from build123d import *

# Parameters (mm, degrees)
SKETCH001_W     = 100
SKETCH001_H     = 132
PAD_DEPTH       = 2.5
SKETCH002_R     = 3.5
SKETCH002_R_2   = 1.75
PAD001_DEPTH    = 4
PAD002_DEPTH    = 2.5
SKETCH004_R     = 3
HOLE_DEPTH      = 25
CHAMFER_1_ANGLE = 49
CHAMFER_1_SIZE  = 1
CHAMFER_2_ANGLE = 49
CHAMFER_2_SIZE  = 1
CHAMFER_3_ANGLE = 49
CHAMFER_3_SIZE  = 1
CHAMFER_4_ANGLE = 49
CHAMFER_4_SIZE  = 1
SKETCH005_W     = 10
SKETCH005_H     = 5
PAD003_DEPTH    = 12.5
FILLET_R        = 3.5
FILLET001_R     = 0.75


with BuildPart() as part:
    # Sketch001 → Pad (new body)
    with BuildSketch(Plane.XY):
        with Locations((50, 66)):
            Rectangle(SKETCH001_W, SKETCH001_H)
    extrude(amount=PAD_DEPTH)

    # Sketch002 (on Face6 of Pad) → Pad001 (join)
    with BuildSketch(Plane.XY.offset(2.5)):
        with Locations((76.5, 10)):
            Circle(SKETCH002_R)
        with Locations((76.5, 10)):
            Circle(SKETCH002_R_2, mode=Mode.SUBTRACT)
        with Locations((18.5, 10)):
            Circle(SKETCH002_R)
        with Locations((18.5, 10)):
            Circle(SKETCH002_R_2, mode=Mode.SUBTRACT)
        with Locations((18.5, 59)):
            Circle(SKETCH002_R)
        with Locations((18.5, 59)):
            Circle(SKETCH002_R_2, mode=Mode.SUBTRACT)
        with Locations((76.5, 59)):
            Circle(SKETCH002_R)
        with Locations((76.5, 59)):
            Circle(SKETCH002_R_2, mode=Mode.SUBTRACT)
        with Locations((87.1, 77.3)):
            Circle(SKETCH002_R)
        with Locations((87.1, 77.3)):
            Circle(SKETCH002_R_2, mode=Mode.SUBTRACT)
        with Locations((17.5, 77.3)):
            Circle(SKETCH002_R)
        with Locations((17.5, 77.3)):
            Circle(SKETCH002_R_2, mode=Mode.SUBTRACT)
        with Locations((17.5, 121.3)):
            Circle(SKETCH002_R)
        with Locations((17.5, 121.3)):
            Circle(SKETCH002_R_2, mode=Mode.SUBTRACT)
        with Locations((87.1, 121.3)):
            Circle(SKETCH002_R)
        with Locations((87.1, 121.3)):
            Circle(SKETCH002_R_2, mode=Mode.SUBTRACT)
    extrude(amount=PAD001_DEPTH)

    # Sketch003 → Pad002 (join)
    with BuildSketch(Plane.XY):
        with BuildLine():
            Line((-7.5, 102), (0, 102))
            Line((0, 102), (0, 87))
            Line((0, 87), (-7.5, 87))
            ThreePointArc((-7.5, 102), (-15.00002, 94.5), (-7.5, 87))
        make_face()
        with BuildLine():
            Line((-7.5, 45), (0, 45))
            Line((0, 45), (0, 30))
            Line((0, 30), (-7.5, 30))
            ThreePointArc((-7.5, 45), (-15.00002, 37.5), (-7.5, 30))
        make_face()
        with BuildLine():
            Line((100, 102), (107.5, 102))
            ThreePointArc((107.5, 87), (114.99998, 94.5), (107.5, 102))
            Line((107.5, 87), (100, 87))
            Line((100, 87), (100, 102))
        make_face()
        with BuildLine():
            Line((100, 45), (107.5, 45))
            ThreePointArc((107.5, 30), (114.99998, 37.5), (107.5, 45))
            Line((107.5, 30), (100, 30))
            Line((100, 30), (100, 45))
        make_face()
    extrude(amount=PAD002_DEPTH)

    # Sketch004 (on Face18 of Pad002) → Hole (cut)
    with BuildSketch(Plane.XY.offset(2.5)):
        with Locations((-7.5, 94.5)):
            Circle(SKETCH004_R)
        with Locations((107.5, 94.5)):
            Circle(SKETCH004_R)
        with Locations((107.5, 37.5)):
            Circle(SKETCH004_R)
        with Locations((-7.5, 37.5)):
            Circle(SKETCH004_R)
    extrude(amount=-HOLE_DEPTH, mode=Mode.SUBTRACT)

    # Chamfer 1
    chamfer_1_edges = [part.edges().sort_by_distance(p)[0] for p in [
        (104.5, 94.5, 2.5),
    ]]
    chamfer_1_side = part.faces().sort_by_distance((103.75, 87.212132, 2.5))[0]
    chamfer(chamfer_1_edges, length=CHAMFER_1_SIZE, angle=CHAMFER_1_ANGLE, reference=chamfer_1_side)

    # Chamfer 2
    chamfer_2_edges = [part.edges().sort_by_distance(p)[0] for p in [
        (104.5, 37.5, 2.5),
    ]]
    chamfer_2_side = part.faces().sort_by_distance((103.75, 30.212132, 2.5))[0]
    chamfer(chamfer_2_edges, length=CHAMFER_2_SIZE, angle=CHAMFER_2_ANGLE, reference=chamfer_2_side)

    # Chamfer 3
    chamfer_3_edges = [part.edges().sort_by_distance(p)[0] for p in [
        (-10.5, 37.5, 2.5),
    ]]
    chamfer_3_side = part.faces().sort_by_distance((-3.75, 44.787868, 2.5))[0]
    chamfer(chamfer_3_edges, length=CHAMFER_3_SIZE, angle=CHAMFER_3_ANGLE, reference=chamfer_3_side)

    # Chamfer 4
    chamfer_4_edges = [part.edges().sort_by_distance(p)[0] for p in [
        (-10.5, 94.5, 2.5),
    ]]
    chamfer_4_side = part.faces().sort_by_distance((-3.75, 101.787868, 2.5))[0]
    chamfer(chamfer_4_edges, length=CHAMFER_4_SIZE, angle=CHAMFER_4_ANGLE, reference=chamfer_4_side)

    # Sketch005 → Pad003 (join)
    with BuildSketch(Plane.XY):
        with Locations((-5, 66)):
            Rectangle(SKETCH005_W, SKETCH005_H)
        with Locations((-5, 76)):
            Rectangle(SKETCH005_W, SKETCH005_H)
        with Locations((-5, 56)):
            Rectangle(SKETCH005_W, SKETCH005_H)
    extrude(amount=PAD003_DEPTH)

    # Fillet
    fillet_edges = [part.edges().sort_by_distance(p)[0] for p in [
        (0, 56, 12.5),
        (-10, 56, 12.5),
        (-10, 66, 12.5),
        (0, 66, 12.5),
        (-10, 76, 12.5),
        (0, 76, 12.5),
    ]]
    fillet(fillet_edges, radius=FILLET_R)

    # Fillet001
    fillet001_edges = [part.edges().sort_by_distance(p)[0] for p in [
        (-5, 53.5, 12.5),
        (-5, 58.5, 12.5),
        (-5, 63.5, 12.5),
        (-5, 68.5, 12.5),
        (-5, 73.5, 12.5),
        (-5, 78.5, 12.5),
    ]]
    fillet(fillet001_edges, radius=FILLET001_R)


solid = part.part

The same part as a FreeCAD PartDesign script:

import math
import FreeCAD as App
import Part
import Sketcher
from FreeCAD import Vector
Q = App.Units.Quantity


def edges_at(feature, points):
    """Names of the edges that pass closest to the given points."""
    edges = feature.Shape.Edges
    near = lambda p: min(range(len(edges)), key=lambda i: edges[i].distToShape(Part.Vertex(*p))[0])
    return sorted({f"Edge{near(p) + 1}" for p in points})


def add_polygon(sketch, points):
    """Adds a closed chain of lines whose ends are joined by coincident constraints."""
    first, n = sketch.GeometryCount, len(points)
    for a, b in zip(points, points[1:] + points[:1]):
        sketch.addGeometry(Part.LineSegment(App.Vector(*a, 0), App.Vector(*b, 0)), False)
    for i in range(n):
        sketch.addConstraint(Sketcher.Constraint("Coincident", first + i, 2, first + (i + 1) % n, 1))

doc = App.newDocument("Part")
body = doc.addObject("PartDesign::Body", "Body")

# Sketch on XY plane
sketch1 = doc.addObject("Sketcher::SketchObject", "Sketch")
body.addObject(sketch1)
sketch1.AttachmentSupport = (doc.XY_Plane, [""])
sketch1.MapMode = "FlatFace"
add_polygon(sketch1, [(0, 132), (0, 0), (100, 0), (100, 132)])  # lines 0-3
sketch1.addConstraint([
    Sketcher.Constraint("Vertical", 0),
    Sketcher.Constraint("Horizontal", 1),
    Sketcher.Constraint("Vertical", 2),
    Sketcher.Constraint("Horizontal", 3),
    Sketcher.Constraint("Coincident", 0, 2, -1, 1),
    Sketcher.Constraint("DistanceX", 1, 1, 1, 2, Q("100 mm")),
    Sketcher.Constraint("DistanceY", 0, 2, 0, 1, Q("132 mm")),
])
pad1 = doc.addObject("PartDesign::Pad", "Pad")
body.addObject(pad1)
pad1.Profile = sketch1
pad1.Length = 2.5

# Sketch on XY plane
sketch2 = doc.addObject("Sketcher::SketchObject", "Sketch001")
body.addObject(sketch2)
sketch2.AttachmentSupport = (doc.XY_Plane, [""])
sketch2.MapMode = "FlatFace"
sketch2.AttachmentOffset = App.Placement(Vector(0, 0, 2.5), App.Rotation())
sketch2.addGeometry([
    Part.Circle(Vector(76.5, 10, 0), Vector(0, 0, 1), 3.5),  # 0
    Part.Circle(Vector(76.5, 10, 0), Vector(0, 0, 1), 1.8),  # 1
    Part.Circle(Vector(18.5, 10, 0), Vector(0, 0, 1), 3.5),  # 2
    Part.Circle(Vector(18.5, 10, 0), Vector(0, 0, 1), 1.8),  # 3
    Part.Circle(Vector(18.5, 59, 0), Vector(0, 0, 1), 3.5),  # 4
    Part.Circle(Vector(18.5, 59, 0), Vector(0, 0, 1), 1.8),  # 5
    Part.Circle(Vector(76.5, 59, 0), Vector(0, 0, 1), 3.5),  # 6
    Part.Circle(Vector(76.5, 59, 0), Vector(0, 0, 1), 1.8),  # 7
    Part.Circle(Vector(87.1, 77.3, 0), Vector(0, 0, 1), 3.5),  # 8
    Part.Circle(Vector(87.1, 77.3, 0), Vector(0, 0, 1), 1.8),  # 9
    Part.Circle(Vector(17.5, 77.3, 0), Vector(0, 0, 1), 3.5),  # 10
    Part.Circle(Vector(17.5, 77.3, 0), Vector(0, 0, 1), 1.8),  # 11
    Part.Circle(Vector(17.5, 121.3, 0), Vector(0, 0, 1), 3.5),  # 12
    Part.Circle(Vector(17.5, 121.3, 0), Vector(0, 0, 1), 1.8),  # 13
    Part.Circle(Vector(87.1, 121.3, 0), Vector(0, 0, 1), 3.5),  # 14
    Part.Circle(Vector(87.1, 121.3, 0), Vector(0, 0, 1), 1.8),  # 15
], False)
sketch2.addConstraint([
    Sketcher.Constraint("Coincident", 1, 3, 0, 3),
    Sketcher.Constraint("Coincident", 3, 3, 2, 3),
    Sketcher.Constraint("Coincident", 5, 3, 4, 3),
    Sketcher.Constraint("Coincident", 7, 3, 6, 3),
    Sketcher.Constraint("Coincident", 9, 3, 8, 3),
    Sketcher.Constraint("Coincident", 11, 3, 10, 3),
    Sketcher.Constraint("Coincident", 13, 3, 12, 3),
    Sketcher.Constraint("Coincident", 15, 3, 14, 3),
    Sketcher.Constraint("Equal", 0, 2),
    Sketcher.Constraint("Equal", 1, 3),
    Sketcher.Constraint("Equal", 2, 4),
    Sketcher.Constraint("Equal", 3, 5),
    Sketcher.Constraint("Equal", 4, 6),
    Sketcher.Constraint("Equal", 5, 7),
    Sketcher.Constraint("Equal", 6, 8),
    Sketcher.Constraint("Equal", 7, 9),
    Sketcher.Constraint("Equal", 8, 10),
    Sketcher.Constraint("Equal", 9, 11),
    Sketcher.Constraint("Equal", 10, 12),
    Sketcher.Constraint("Equal", 11, 13),
    Sketcher.Constraint("Equal", 12, 14),
    Sketcher.Constraint("Equal", 13, 15),
    Sketcher.Constraint("Horizontal", 1, 3, 2, 3),
    Sketcher.Constraint("Horizontal", 5, 3, 6, 3),
    Sketcher.Constraint("Horizontal", 9, 3, 10, 3),
    Sketcher.Constraint("Horizontal", 13, 3, 14, 3),
    Sketcher.Constraint("Vertical", 3, 3, 4, 3),
    Sketcher.Constraint("Vertical", 1, 3, 6, 3),
    Sketcher.Constraint("Vertical", 11, 3, 12, 3),
    Sketcher.Constraint("Vertical", 9, 3, 14, 3),
    Sketcher.Constraint("Diameter", 0, Q("7 mm")),
    Sketcher.Constraint("Diameter", 1, Q("3.5 mm")),
    Sketcher.Constraint("DistanceY", -1, 1, 0, 3, Q("10 mm")),
    Sketcher.Constraint("DistanceY", -1, 1, 4, 3, Q("59 mm")),
    Sketcher.Constraint("DistanceX", 2, 3, 0, 3, Q("58 mm")),
    Sketcher.Constraint("DistanceX", 10, 3, 4, 3, Q("1 mm")),
    Sketcher.Constraint("DistanceY", 10, 3, 12, 3, Q("44 mm")),
    Sketcher.Constraint("DistanceX", -1, 1, 0, 3, Q("76.5 mm")),
    Sketcher.Constraint("DistanceX", -1, 1, 8, 3, Q("87.1 mm")),
    Sketcher.Constraint("DistanceY", -1, 1, 8, 3, Q("77.3 mm")),
])
pad2 = doc.addObject("PartDesign::Pad", "Pad001")
body.addObject(pad2)
pad2.Profile = sketch2
pad2.Length = 4

# Sketch on XY plane
sketch3 = doc.addObject("Sketcher::SketchObject", "Sketch002")
body.addObject(sketch3)
sketch3.AttachmentSupport = (doc.XY_Plane, [""])
sketch3.MapMode = "FlatFace"
sketch3.addGeometry([
    Part.LineSegment(Vector(0, 102, 0), Vector(-8, 102, 0)),  # 0
    Part.ArcOfCircle(Part.Circle(Vector(-8, 94, 0), Vector(0, 0, 1), 8), math.radians(90), math.radians(270)),  # 1
    Part.LineSegment(Vector(-8, 87, 0), Vector(0, 87, 0)),  # 2
    Part.LineSegment(Vector(0, 87, 0), Vector(0, 102, 0)),  # 3
    Part.LineSegment(Vector(0, 45, 0), Vector(-8, 45, 0)),  # 4
    Part.ArcOfCircle(Part.Circle(Vector(-8, 38, 0), Vector(0, 0, 1), 8), math.radians(90), math.radians(270)),  # 5
    Part.LineSegment(Vector(-8, 30, 0), Vector(0, 30, 0)),  # 6
    Part.LineSegment(Vector(0, 30, 0), Vector(0, 45, 0)),  # 7
    Part.LineSegment(Vector(108, 102, 0), Vector(100, 102, 0)),  # 8
    Part.LineSegment(Vector(100, 102, 0), Vector(100, 87, 0)),  # 9
    Part.LineSegment(Vector(100, 87, 0), Vector(108, 87, 0)),  # 10
    Part.ArcOfCircle(Part.Circle(Vector(107, 94, 0), Vector(0, 0, 1), 8), math.radians(-90), math.radians(90)),  # 11
    Part.LineSegment(Vector(108, 45, 0), Vector(100, 45, 0)),  # 12
    Part.LineSegment(Vector(100, 45, 0), Vector(100, 30, 0)),  # 13
    Part.LineSegment(Vector(100, 30, 0), Vector(108, 30, 0)),  # 14
    Part.ArcOfCircle(Part.Circle(Vector(107, 38, 0), Vector(0, 0, 1), 8), math.radians(-90), math.radians(90)),  # 15
], False)
sketch3.addConstraint([
    Sketcher.Constraint("Coincident", 0, 2, 1, 1),
    Sketcher.Constraint("Coincident", 1, 2, 2, 1),
    Sketcher.Constraint("Coincident", 2, 2, 3, 1),
    Sketcher.Constraint("Coincident", 3, 2, 0, 1),
    Sketcher.Constraint("Coincident", 4, 2, 5, 1),
    Sketcher.Constraint("Coincident", 5, 2, 6, 1),
    Sketcher.Constraint("Coincident", 6, 2, 7, 1),
    Sketcher.Constraint("Coincident", 7, 2, 4, 1),
    Sketcher.Constraint("Coincident", 8, 2, 9, 1),
    Sketcher.Constraint("Coincident", 9, 2, 10, 1),
    Sketcher.Constraint("Coincident", 10, 2, 11, 1),
    Sketcher.Constraint("Coincident", 11, 2, 8, 1),
    Sketcher.Constraint("Coincident", 12, 2, 13, 1),
    Sketcher.Constraint("Coincident", 13, 2, 14, 1),
    Sketcher.Constraint("Coincident", 14, 2, 15, 1),
    Sketcher.Constraint("Coincident", 15, 2, 12, 1),
    Sketcher.Constraint("Horizontal", 0),
    Sketcher.Constraint("Horizontal", 2),
    Sketcher.Constraint("Vertical", 3),
    Sketcher.Constraint("Horizontal", 4),
    Sketcher.Constraint("Horizontal", 6),
    Sketcher.Constraint("Vertical", 7),
    Sketcher.Constraint("Horizontal", 8),
    Sketcher.Constraint("Vertical", 9),
    Sketcher.Constraint("Horizontal", 10),
    Sketcher.Constraint("Horizontal", 12),
    Sketcher.Constraint("Vertical", 13),
    Sketcher.Constraint("Horizontal", 14),
    Sketcher.Constraint("Equal", 1, 5),
    Sketcher.Constraint("Equal", 5, 11),
    Sketcher.Constraint("Equal", 11, 15),
    Sketcher.Constraint("PointOnObject", 2, 2, -2),
    Sketcher.Constraint("PointOnObject", 6, 2, -2),
    Sketcher.Constraint("Horizontal", 1, 3, 11, 3),
    Sketcher.Constraint("Horizontal", 5, 3, 15, 3),
    Sketcher.Constraint("Vertical", 1, 3, 5, 3),
    Sketcher.Constraint("Vertical", 11, 3, 15, 3),
    Sketcher.Constraint("Vertical", 0, 2, 1, 2),
    Sketcher.Constraint("Vertical", 1, 2, 4, 2),
    Sketcher.Constraint("Vertical", 4, 2, 5, 2),
    Sketcher.Constraint("Vertical", 10, 2, 11, 2),
    Sketcher.Constraint("Vertical", 9, 2, 12, 2),
    Sketcher.Constraint("Vertical", 11, 2, 14, 2),
    Sketcher.Constraint("Vertical", 14, 2, 15, 2),
    Sketcher.Constraint("Equal", 6, 8),
    Sketcher.Constraint("Radius", 1, Q("7.5 mm")),
    Sketcher.Constraint("DistanceX", 0, 2, 0, 1, Q("7.5 mm")),
    Sketcher.Constraint("DistanceY", -1, 1, 0, 2, Q("102 mm")),
    Sketcher.Constraint("DistanceY", -1, 1, 4, 2, Q("45 mm")),
    Sketcher.Constraint("DistanceX", -1, 1, 8, 2, Q("100 mm")),
    Sketcher.Constraint("DistanceX", 1, 3, 11, 3, Q("115 mm")),
    Sketcher.Constraint("DistanceX", 1, 3, -1, 1, Q("7.50002 mm")),
])
pad3 = doc.addObject("PartDesign::Pad", "Pad002")
body.addObject(pad3)
pad3.Profile = sketch3
pad3.Length = 2.5

# Sketch on XY plane
sketch4 = doc.addObject("Sketcher::SketchObject", "Sketch003")
body.addObject(sketch4)
sketch4.AttachmentSupport = (doc.XY_Plane, [""])
sketch4.MapMode = "FlatFace"
sketch4.AttachmentOffset = App.Placement(Vector(0, 0, 2.5), App.Rotation())
sketch4.addGeometry([
    Part.Circle(Vector(-7.5, 94.5, 0), Vector(0, 0, 1), 3),
    Part.Circle(Vector(107.5, 94.5, 0), Vector(0, 0, 1), 3),
    Part.Circle(Vector(107.5, 37.5, 0), Vector(0, 0, 1), 3),
    Part.Circle(Vector(-7.5, 37.5, 0), Vector(0, 0, 1), 3),
], False)
sketch4.addConstraint([
    Sketcher.Constraint("Equal", 0, 1),
    Sketcher.Constraint("Equal", 1, 2),
    Sketcher.Constraint("Equal", 2, 3),
    Sketcher.Constraint("Horizontal", 0, 3, 1, 3),
    Sketcher.Constraint("Horizontal", 2, 3, 3, 3),
    Sketcher.Constraint("Vertical", 1, 3, 2, 3),
    Sketcher.Constraint("Vertical", 0, 3, 3, 3),
    Sketcher.Constraint("Diameter", 0, Q("6 mm")),
    Sketcher.Constraint("DistanceX", 0, 3, 1, 3, Q("115 mm")),
    Sketcher.Constraint("DistanceY", 2, 3, 1, 3, Q("57 mm")),
    Sketcher.Constraint("DistanceX", 0, 3, -1, 1, Q("7.5 mm")),
    Sketcher.Constraint("DistanceY", -1, 1, 0, 3, Q("94.5 mm")),
])
pocket1 = doc.addObject("PartDesign::Pocket", "Pocket")
body.addObject(pocket1)
pocket1.Profile = sketch4
pocket1.Length = 25
doc.recompute()

chamfer = doc.addObject("PartDesign::Chamfer", "Chamfer")
body.addObject(chamfer)
chamfer.Base = (pocket1, edges_at(pocket1, [(104.5, 94.5, 2.5)]))
chamfer.ChamferType = "Distance and Angle"
chamfer.Size = 1
chamfer.Angle = 49
doc.recompute()

chamfer2 = doc.addObject("PartDesign::Chamfer", "Chamfer001")
body.addObject(chamfer2)
chamfer2.Base = (chamfer, edges_at(chamfer, [(104.5, 37.5, 2.5)]))
chamfer2.ChamferType = "Distance and Angle"
chamfer2.Size = 1
chamfer2.Angle = 49
doc.recompute()

chamfer3 = doc.addObject("PartDesign::Chamfer", "Chamfer002")
body.addObject(chamfer3)
chamfer3.Base = (chamfer2, edges_at(chamfer2, [(-10.5, 37.5, 2.5)]))
chamfer3.ChamferType = "Distance and Angle"
chamfer3.Size = 1
chamfer3.Angle = 49
doc.recompute()

chamfer4 = doc.addObject("PartDesign::Chamfer", "Chamfer003")
body.addObject(chamfer4)
chamfer4.Base = (chamfer3, edges_at(chamfer3, [(-10.5, 94.5, 2.5)]))
chamfer4.ChamferType = "Distance and Angle"
chamfer4.Size = 1
chamfer4.Angle = 49

# Sketch on XY plane
sketch5 = doc.addObject("Sketcher::SketchObject", "Sketch004")
body.addObject(sketch5)
sketch5.AttachmentSupport = (doc.XY_Plane, [""])
sketch5.MapMode = "FlatFace"
add_polygon(sketch5, [(-10, 68), (-10, 64), (0, 64), (0, 68)])  # lines 0-3
add_polygon(sketch5, [(-10, 78), (-10, 74), (0, 74), (0, 78)])  # lines 4-7
add_polygon(sketch5, [(-10, 58), (-10, 54), (0, 54), (0, 58)])  # lines 8-11
sketch5.addConstraint([
    Sketcher.Constraint("Vertical", 0),
    Sketcher.Constraint("Horizontal", 1),
    Sketcher.Constraint("Vertical", 2),
    Sketcher.Constraint("Horizontal", 3),
    Sketcher.Constraint("Vertical", 4),
    Sketcher.Constraint("Horizontal", 5),
    Sketcher.Constraint("Vertical", 6),
    Sketcher.Constraint("Horizontal", 7),
    Sketcher.Constraint("Vertical", 8),
    Sketcher.Constraint("Horizontal", 9),
    Sketcher.Constraint("Vertical", 10),
    Sketcher.Constraint("Horizontal", 11),
    Sketcher.Constraint("PointOnObject", 1, 2, -2),
    Sketcher.Constraint("PointOnObject", 5, 2, -2),
    Sketcher.Constraint("PointOnObject", 9, 2, -2),
    Sketcher.Constraint("Vertical", 3, 2, 4, 2),
    Sketcher.Constraint("Vertical", 7, 2, 8, 2),
    Sketcher.Constraint("Equal", 2, 4),
    Sketcher.Constraint("Equal", 6, 8),
    Sketcher.Constraint("DistanceX", 1, 1, 1, 2, Q("10 mm")),
    Sketcher.Constraint("DistanceY", 0, 2, 0, 1, Q("5 mm")),
    Sketcher.Constraint("DistanceY", 3, 2, 4, 2, Q("5 mm")),
    Sketcher.Constraint("DistanceY", 8, 2, 0, 2, Q("10 mm")),
    Sketcher.Constraint("DistanceY", -1, 1, 0, 2, Q("63.5 mm")),
])
pad4 = doc.addObject("PartDesign::Pad", "Pad003")
body.addObject(pad4)
pad4.Profile = sketch5
pad4.Length = 12.5
doc.recompute()

fillet = doc.addObject("PartDesign::Fillet", "Fillet")
body.addObject(fillet)
fillet.Base = (pad4, edges_at(pad4, [
    (0, 56, 12.5),
    (-10, 56, 12.5),
    (-10, 66, 12.5),
    (0, 66, 12.5),
    (-10, 76, 12.5),
    (0, 76, 12.5),
]))
fillet.Radius = 3.5
doc.recompute()

fillet2 = doc.addObject("PartDesign::Fillet", "Fillet001")
body.addObject(fillet2)
fillet2.Base = (fillet, edges_at(fillet, [
    (-5, 53.5, 12.5),
    (-5, 58.5, 12.5),
    (-5, 63.5, 12.5),
    (-5, 68.5, 12.5),
    (-5, 73.5, 12.5),
    (-5, 78.5, 12.5),
]))
fillet2.Radius = 0.75

doc.recompute()
